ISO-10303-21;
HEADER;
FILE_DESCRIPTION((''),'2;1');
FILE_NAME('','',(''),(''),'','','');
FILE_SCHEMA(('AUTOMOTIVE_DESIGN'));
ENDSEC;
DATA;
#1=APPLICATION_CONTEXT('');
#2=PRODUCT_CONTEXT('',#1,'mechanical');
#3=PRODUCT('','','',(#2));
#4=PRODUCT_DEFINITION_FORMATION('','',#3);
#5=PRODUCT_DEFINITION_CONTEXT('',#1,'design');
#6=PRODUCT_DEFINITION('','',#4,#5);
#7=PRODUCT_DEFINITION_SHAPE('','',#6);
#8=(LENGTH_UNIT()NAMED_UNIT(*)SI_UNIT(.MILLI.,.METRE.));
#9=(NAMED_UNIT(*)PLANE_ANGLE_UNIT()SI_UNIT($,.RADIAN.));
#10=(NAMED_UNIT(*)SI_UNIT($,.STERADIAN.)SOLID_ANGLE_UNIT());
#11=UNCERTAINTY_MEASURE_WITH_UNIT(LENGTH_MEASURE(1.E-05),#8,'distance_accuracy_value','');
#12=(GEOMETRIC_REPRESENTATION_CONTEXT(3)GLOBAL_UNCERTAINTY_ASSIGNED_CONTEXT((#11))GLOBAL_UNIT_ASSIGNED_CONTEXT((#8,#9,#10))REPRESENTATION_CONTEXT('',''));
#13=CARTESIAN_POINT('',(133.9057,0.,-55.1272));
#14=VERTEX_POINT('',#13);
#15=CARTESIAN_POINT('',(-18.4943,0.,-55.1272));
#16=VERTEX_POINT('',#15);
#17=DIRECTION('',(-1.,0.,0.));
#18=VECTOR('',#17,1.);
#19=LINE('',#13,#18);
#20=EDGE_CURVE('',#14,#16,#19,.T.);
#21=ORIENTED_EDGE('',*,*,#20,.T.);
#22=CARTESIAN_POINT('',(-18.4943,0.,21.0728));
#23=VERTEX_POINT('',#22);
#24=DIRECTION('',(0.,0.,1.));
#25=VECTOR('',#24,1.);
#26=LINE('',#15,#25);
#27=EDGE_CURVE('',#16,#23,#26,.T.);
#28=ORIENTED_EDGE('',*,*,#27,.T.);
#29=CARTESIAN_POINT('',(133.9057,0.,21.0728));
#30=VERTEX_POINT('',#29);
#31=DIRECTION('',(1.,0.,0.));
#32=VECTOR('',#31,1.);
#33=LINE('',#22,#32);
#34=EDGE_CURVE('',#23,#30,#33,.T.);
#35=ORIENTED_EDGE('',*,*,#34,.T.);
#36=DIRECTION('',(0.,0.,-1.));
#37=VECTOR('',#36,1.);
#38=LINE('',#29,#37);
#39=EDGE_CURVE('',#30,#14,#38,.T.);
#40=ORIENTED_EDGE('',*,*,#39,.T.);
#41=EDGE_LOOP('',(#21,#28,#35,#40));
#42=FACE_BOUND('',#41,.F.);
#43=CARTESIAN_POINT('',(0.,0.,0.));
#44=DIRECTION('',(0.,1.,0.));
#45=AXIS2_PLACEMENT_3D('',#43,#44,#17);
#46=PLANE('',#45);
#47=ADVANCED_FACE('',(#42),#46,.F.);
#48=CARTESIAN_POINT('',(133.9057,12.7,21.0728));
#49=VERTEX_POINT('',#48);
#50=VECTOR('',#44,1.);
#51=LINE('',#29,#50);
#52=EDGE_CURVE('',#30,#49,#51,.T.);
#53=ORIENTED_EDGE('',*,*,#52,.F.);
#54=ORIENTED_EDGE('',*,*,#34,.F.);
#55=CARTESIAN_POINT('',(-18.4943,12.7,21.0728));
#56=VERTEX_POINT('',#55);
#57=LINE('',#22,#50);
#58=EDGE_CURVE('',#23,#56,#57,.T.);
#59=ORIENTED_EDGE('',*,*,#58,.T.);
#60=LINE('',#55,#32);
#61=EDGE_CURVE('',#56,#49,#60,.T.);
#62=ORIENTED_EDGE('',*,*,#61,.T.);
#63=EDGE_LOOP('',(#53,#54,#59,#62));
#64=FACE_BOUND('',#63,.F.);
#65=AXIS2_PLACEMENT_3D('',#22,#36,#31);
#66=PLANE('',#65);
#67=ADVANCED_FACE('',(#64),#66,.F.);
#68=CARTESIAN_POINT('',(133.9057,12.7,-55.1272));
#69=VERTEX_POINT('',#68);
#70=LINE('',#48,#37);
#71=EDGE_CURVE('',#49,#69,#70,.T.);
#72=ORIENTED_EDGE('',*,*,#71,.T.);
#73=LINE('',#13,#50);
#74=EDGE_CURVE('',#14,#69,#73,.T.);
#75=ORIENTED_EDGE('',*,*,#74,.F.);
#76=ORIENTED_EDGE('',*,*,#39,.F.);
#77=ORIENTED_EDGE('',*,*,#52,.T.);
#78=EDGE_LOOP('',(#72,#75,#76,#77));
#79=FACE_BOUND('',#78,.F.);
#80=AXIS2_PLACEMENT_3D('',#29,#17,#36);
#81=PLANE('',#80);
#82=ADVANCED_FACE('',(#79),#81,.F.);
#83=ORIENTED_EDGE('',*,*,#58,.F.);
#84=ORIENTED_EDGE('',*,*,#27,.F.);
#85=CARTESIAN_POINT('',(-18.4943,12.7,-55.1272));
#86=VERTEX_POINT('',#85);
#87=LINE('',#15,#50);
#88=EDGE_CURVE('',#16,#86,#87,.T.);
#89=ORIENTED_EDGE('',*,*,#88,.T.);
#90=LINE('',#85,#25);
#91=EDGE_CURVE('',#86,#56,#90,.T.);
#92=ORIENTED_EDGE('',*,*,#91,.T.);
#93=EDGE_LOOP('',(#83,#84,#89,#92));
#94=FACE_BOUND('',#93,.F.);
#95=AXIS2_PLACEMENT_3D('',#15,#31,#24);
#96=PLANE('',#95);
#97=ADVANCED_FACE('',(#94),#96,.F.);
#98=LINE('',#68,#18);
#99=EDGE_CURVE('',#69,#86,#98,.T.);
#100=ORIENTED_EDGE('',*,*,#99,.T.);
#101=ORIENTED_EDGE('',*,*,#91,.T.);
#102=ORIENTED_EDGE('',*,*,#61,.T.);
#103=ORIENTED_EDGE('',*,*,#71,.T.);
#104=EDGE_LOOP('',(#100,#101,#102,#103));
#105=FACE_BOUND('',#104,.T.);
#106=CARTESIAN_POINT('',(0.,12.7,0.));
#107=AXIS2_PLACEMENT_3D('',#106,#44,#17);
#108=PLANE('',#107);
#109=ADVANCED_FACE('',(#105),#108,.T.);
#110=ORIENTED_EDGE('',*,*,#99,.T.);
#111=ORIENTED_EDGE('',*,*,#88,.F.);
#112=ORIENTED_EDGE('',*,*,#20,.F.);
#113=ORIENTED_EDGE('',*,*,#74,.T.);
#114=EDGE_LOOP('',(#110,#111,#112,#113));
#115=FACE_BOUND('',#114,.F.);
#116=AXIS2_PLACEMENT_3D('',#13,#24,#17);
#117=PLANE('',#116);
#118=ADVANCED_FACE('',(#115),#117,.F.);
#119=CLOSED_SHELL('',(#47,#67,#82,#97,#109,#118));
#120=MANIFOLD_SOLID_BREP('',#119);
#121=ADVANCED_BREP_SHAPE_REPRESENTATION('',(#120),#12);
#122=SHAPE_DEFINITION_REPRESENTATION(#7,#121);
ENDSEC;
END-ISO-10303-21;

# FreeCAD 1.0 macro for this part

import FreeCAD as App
import Part
import Sketcher
from FreeCAD import Vector
Q = App.Units.Quantity


def add_polygon(sketch, points):
    """Adds a closed chain of lines whose ends are joined by coincident constraints."""
    first, n = sketch.GeometryCount, len(points)
    for a, b in zip(points, points[1:] + points[:1]):
        sketch.addGeometry(Part.LineSegment(App.Vector(*a, 0), App.Vector(*b, 0)), False)
    for i in range(n):
        sketch.addConstraint(Sketcher.Constraint("Coincident", first + i, 2, first + (i + 1) % n, 1))

doc = App.newDocument("Part")
body = doc.addObject("PartDesign::Body", "Body")

# Sketch on XZ plane
sketch1 = body.newObject("Sketcher::SketchObject", "Sketch")
sketch1.AttachmentSupport = (doc.getObject("XZ_Plane"), [""])
sketch1.MapMode = "FlatFace"
add_polygon(sketch1, [(-18, -55), (-18, 21), (134, 21), (134, -55)])  # lines 0-3
sketch1.addConstraint(Sketcher.Constraint("Vertical", 0))
sketch1.addConstraint(Sketcher.Constraint("Horizontal", 1))
sketch1.addConstraint(Sketcher.Constraint("Vertical", 2))
sketch1.addConstraint(Sketcher.Constraint("Horizontal", 3))
sketch1.addConstraint(Sketcher.Constraint("DistanceX", 1, 1, 1, 2, Q("6 in")))
sketch1.addConstraint(Sketcher.Constraint("DistanceY", 0, 1, 0, 2, Q("3 in")))
sketch1.addConstraint(Sketcher.Constraint("DistanceX", 0, 2, -1, 1, 18.4943))
sketch1.addConstraint(Sketcher.Constraint("DistanceY", -1, 1, 0, 2, 21.0728))
pad1 = body.newObject("PartDesign::Pad", "Pad")
pad1.Profile = sketch1
pad1.Length = Q("0.5 in")
pad1.Reversed = True

doc.recompute()
